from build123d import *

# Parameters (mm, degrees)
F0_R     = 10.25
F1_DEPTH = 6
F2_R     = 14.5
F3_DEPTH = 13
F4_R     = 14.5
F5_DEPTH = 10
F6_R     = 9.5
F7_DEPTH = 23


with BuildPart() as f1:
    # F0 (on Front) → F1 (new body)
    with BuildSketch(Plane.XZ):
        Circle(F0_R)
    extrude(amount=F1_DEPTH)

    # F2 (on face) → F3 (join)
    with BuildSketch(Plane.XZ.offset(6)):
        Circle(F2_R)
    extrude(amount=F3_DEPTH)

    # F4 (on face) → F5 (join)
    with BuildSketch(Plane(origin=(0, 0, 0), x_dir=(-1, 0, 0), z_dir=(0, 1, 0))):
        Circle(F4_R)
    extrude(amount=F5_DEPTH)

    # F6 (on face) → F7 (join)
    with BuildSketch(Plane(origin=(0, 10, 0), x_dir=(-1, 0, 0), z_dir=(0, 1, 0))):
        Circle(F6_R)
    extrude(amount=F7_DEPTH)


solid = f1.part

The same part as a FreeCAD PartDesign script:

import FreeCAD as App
import Part
import Sketcher

V = App.Vector
Q = App.Units.Quantity

doc = App.newDocument("Part")
body = doc.addObject("PartDesign::Body", "Body")

sketch1 = body.newObject("Sketcher::SketchObject", "Sketch")
sketch1.AttachmentSupport = (doc.getObject("XZ_Plane"), [""])
sketch1.MapMode = "FlatFace"
sketch1.addGeometry(Part.Circle(V(0, 0, 0), V(0, 0, 1), 10), False)
sketch1.addConstraint([
    Sketcher.Constraint("Coincident", 0, 3, -1, 1),
    Sketcher.Constraint("Diameter", 0, Q("20.5 mm")),
])
pad1 = body.newObject("PartDesign::Pad", "Pad")
pad1.Profile = sketch1
pad1.Length = 6

sketch2 = body.newObject("Sketcher::SketchObject", "Sketch001")
sketch2.AttachmentSupport = (doc.getObject("XZ_Plane"), [""])
sketch2.MapMode = "FlatFace"
sketch2.AttachmentOffset = App.Placement(V(0, 0, 6), App.Rotation())
sketch2.addGeometry(Part.Circle(V(0, 0, 0), V(0, 0, 1), 14), False)
sketch2.addConstraint([
    Sketcher.Constraint("Coincident", 0, 3, -1, 1),
    Sketcher.Constraint("Diameter", 0, Q("29 mm")),
])
pad2 = body.newObject("PartDesign::Pad", "Pad001")
pad2.Profile = sketch2
pad2.Length = 13

sketch3 = body.newObject("Sketcher::SketchObject", "Sketch002")
sketch3.AttachmentSupport = (doc.getObject("XZ_Plane"), [""])
sketch3.MapMode = "FlatFace"
sketch3.addGeometry(Part.Circle(V(0, 0, 0), V(0, 0, 1), 14), False)
sketch3.addConstraint([
    Sketcher.Constraint("Coincident", 0, 3, -1, 1),
    Sketcher.Constraint("Diameter", 0, Q("29 mm")),
])
pad3 = body.newObject("PartDesign::Pad", "Pad002")
pad3.Profile = sketch3
pad3.Length = 10
pad3.Reversed = True

sketch4 = body.newObject("Sketcher::SketchObject", "Sketch003")
sketch4.AttachmentSupport = (doc.getObject("XZ_Plane"), [""])
sketch4.MapMode = "FlatFace"
sketch4.AttachmentOffset = App.Placement(V(0, 0, -10), App.Rotation())
sketch4.addGeometry(Part.Circle(V(0, 0, 0), V(0, 0, 1), 10), False)
sketch4.addConstraint([
    Sketcher.Constraint("Coincident", 0, 3, -1, 1),
    Sketcher.Constraint("Diameter", 0, Q("19 mm")),
])
pad4 = body.newObject("PartDesign::Pad", "Pad003")
pad4.Profile = sketch4
pad4.Length = 23
pad4.Reversed = True

doc.recompute()
